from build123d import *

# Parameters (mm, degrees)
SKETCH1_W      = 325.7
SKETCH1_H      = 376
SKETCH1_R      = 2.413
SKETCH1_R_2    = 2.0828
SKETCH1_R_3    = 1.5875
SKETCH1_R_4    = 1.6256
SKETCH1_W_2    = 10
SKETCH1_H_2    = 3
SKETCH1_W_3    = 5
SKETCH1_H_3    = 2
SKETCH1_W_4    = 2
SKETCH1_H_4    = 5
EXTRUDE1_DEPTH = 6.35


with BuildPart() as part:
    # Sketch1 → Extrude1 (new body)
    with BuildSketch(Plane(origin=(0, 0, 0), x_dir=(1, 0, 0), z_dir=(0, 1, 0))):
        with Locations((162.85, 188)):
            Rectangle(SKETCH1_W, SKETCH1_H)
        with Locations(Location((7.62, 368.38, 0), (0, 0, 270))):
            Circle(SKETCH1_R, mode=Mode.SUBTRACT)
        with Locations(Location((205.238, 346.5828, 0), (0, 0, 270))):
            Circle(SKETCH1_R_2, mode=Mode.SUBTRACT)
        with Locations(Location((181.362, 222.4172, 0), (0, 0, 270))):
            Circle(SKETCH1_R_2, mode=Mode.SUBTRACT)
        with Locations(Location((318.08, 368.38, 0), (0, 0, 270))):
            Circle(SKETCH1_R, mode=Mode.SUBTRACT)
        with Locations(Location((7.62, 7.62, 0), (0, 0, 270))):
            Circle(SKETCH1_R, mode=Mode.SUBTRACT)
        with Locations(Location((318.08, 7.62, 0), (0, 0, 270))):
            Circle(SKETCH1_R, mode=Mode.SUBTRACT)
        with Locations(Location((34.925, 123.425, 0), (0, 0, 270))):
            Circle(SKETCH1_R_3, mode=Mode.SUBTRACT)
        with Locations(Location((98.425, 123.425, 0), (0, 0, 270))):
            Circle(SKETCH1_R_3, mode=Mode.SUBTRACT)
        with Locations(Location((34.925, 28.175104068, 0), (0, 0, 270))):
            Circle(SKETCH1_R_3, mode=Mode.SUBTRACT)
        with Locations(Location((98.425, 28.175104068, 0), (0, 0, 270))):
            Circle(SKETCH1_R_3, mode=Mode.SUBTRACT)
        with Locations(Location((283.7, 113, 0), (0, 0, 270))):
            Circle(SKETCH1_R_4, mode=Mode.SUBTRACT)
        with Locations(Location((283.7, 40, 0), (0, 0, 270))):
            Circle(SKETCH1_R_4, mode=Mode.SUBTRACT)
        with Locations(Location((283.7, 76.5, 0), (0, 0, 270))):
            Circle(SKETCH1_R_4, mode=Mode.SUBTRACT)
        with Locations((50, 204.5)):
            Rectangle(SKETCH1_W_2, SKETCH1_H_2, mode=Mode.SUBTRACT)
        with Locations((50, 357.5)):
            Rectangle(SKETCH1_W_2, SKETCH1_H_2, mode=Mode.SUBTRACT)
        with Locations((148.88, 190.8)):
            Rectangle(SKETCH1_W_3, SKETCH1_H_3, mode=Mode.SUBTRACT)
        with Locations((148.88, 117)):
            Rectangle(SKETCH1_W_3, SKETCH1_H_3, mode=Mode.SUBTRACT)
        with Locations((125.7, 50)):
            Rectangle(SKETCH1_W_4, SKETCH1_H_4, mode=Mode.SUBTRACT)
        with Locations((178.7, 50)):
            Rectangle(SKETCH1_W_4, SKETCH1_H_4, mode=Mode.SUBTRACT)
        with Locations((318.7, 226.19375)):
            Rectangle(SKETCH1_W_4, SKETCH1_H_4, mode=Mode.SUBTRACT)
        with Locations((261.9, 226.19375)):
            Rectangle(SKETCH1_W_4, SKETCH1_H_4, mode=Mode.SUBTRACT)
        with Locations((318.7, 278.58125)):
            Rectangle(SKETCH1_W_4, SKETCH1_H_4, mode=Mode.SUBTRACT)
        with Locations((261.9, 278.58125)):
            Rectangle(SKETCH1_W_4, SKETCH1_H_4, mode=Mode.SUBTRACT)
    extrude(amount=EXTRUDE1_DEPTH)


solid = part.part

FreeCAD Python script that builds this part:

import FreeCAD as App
import Part
import Sketcher
from FreeCAD import Vector

doc = App.newDocument("Part")
body = doc.addObject("PartDesign::Body", "Body")

# Sketch on XZ plane
sketch1 = body.newObject("Sketcher::SketchObject", "Sketch")
sketch1.AttachmentSupport = (doc.getObject("XZ_Plane"), [""])
sketch1.MapMode = "FlatFace"
sketch1.addGeometry([
    Part.LineSegment(Vector(0, -376, 0), Vector(0, 0, 0)),  # 0
    Part.LineSegment(Vector(0, 0, 0), Vector(325.7, 0, 0)),  # 1
    Part.LineSegment(Vector(325.7, 0, 0), Vector(325.7, -376, 0)),  # 2
    Part.LineSegment(Vector(325.7, -376, 0), Vector(0, -376, 0)),  # 3
    Part.Circle(Vector(7.6, -7.6, 0), Vector(0, 0, 1), 2.4),  # 4
    Part.Circle(Vector(34.9, -28.2, 0), Vector(0, 0, 1), 1.6),  # 5
    Part.Circle(Vector(98.4, -28.2, 0), Vector(0, 0, 1), 1.6),  # 6
    Part.LineSegment(Vector(126.7, -47.5, 0), Vector(124.7, -47.5, 0)),  # 7
    Part.LineSegment(Vector(124.7, -47.5, 0), Vector(124.7, -52.5, 0)),  # 8
    Part.LineSegment(Vector(124.7, -52.5, 0), Vector(126.7, -52.5, 0)),  # 9
    Part.LineSegment(Vector(126.7, -52.5, 0), Vector(126.7, -47.5, 0)),  # 10
    Part.Circle(Vector(34.9, -123.4, 0), Vector(0, 0, 1), 1.6),  # 11
    Part.Circle(Vector(98.4, -123.4, 0), Vector(0, 0, 1), 1.6),  # 12
    Part.LineSegment(Vector(151.4, -116, 0), Vector(146.4, -116, 0)),  # 13
    Part.LineSegment(Vector(146.4, -116, 0), Vector(146.4, -118, 0)),  # 14
    Part.LineSegment(Vector(146.4, -118, 0), Vector(151.4, -118, 0)),  # 15
    Part.LineSegment(Vector(151.4, -118, 0), Vector(151.4, -116, 0)),  # 16
    Part.LineSegment(Vector(179.7, -47.5, 0), Vector(177.7, -47.5, 0)),  # 17
    Part.LineSegment(Vector(177.7, -47.5, 0), Vector(177.7, -52.5, 0)),  # 18
    Part.LineSegment(Vector(177.7, -52.5, 0), Vector(179.7, -52.5, 0)),  # 19
    Part.LineSegment(Vector(179.7, -52.5, 0), Vector(179.7, -47.5, 0)),  # 20
    Part.Circle(Vector(318.1, -7.6, 0), Vector(0, 0, 1), 2.4),  # 21
    Part.Circle(Vector(283.7, -40, 0), Vector(0, 0, 1), 1.6),  # 22
    Part.Circle(Vector(283.7, -76.5, 0), Vector(0, 0, 1), 1.6),  # 23
    Part.Circle(Vector(283.7, -113, 0), Vector(0, 0, 1), 1.6),  # 24
    Part.LineSegment(Vector(55, -203, 0), Vector(45, -203, 0)),  # 25
    Part.LineSegment(Vector(45, -203, 0), Vector(45, -206, 0)),  # 26
    Part.LineSegment(Vector(45, -206, 0), Vector(55, -206, 0)),  # 27
    Part.LineSegment(Vector(55, -206, 0), Vector(55, -203, 0)),  # 28
    Part.LineSegment(Vector(151.4, -189.8, 0), Vector(146.4, -189.8, 0)),  # 29
    Part.LineSegment(Vector(146.4, -189.8, 0), Vector(146.4, -191.8, 0)),  # 30
    Part.LineSegment(Vector(146.4, -191.8, 0), Vector(151.4, -191.8, 0)),  # 31
    Part.LineSegment(Vector(151.4, -191.8, 0), Vector(151.4, -189.8, 0)),  # 32
    Part.Circle(Vector(7.6, -368.4, 0), Vector(0, 0, 1), 2.4),  # 33
    Part.LineSegment(Vector(55, -356, 0), Vector(45, -356, 0)),  # 34
    Part.LineSegment(Vector(45, -356, 0), Vector(45, -359, 0)),  # 35
    Part.LineSegment(Vector(45, -359, 0), Vector(55, -359, 0)),  # 36
    Part.LineSegment(Vector(55, -359, 0), Vector(55, -356, 0)),  # 37
    Part.Circle(Vector(181.4, -222.4, 0), Vector(0, 0, 1), 2.1),  # 38
    Part.LineSegment(Vector(262.9, -223.7, 0), Vector(260.9, -223.7, 0)),  # 39
    Part.LineSegment(Vector(260.9, -223.7, 0), Vector(260.9, -228.7, 0)),  # 40
    Part.LineSegment(Vector(260.9, -228.7, 0), Vector(262.9, -228.7, 0)),  # 41
    Part.LineSegment(Vector(262.9, -228.7, 0), Vector(262.9, -223.7, 0)),  # 42
    Part.LineSegment(Vector(319.7, -223.7, 0), Vector(317.7, -223.7, 0)),  # 43
    Part.LineSegment(Vector(317.7, -223.7, 0), Vector(317.7, -228.7, 0)),  # 44
    Part.LineSegment(Vector(317.7, -228.7, 0), Vector(319.7, -228.7, 0)),  # 45
    Part.LineSegment(Vector(319.7, -228.7, 0), Vector(319.7, -223.7, 0)),  # 46
    Part.LineSegment(Vector(262.9, -276.1, 0), Vector(260.9, -276.1, 0)),  # 47
    Part.LineSegment(Vector(260.9, -276.1, 0), Vector(260.9, -281.1, 0)),  # 48
    Part.LineSegment(Vector(260.9, -281.1, 0), Vector(262.9, -281.1, 0)),  # 49
    Part.LineSegment(Vector(262.9, -281.1, 0), Vector(262.9, -276.1, 0)),  # 50
    Part.LineSegment(Vector(319.7, -276.1, 0), Vector(317.7, -276.1, 0)),  # 51
    Part.LineSegment(Vector(317.7, -276.1, 0), Vector(317.7, -281.1, 0)),  # 52
    Part.LineSegment(Vector(317.7, -281.1, 0), Vector(319.7, -281.1, 0)),  # 53
    Part.LineSegment(Vector(319.7, -281.1, 0), Vector(319.7, -276.1, 0)),  # 54
    Part.Circle(Vector(205.2, -346.6, 0), Vector(0, 0, 1), 2.1),  # 55
    Part.Circle(Vector(318.1, -368.4, 0), Vector(0, 0, 1), 2.4),  # 56
], False)
sketch1.addConstraint([
    Sketcher.Constraint("Coincident", 0, 2, 1, 1),
    Sketcher.Constraint("Coincident", 1, 2, 2, 1),
    Sketcher.Constraint("Coincident", 2, 2, 3, 1),
    Sketcher.Constraint("Coincident", 3, 2, 0, 1),
    Sketcher.Constraint("Coincident", 7, 2, 8, 1),
    Sketcher.Constraint("Coincident", 8, 2, 9, 1),
    Sketcher.Constraint("Coincident", 9, 2, 10, 1),
    Sketcher.Constraint("Coincident", 10, 2, 7, 1),
    Sketcher.Constraint("Coincident", 13, 2, 14, 1),
    Sketcher.Constraint("Coincident", 14, 2, 15, 1),
    Sketcher.Constraint("Coincident", 15, 2, 16, 1),
    Sketcher.Constraint("Coincident", 16, 2, 13, 1),
    Sketcher.Constraint("Coincident", 17, 2, 18, 1),
    Sketcher.Constraint("Coincident", 18, 2, 19, 1),
    Sketcher.Constraint("Coincident", 19, 2, 20, 1),
    Sketcher.Constraint("Coincident", 20, 2, 17, 1),
    Sketcher.Constraint("Coincident", 25, 2, 26, 1),
    Sketcher.Constraint("Coincident", 26, 2, 27, 1),
    Sketcher.Constraint("Coincident", 27, 2, 28, 1),
    Sketcher.Constraint("Coincident", 28, 2, 25, 1),
    Sketcher.Constraint("Coincident", 29, 2, 30, 1),
    Sketcher.Constraint("Coincident", 30, 2, 31, 1),
    Sketcher.Constraint("Coincident", 31, 2, 32, 1),
    Sketcher.Constraint("Coincident", 32, 2, 29, 1),
    Sketcher.Constraint("Coincident", 34, 2, 35, 1),
    Sketcher.Constraint("Coincident", 35, 2, 36, 1),
    Sketcher.Constraint("Coincident", 36, 2, 37, 1),
    Sketcher.Constraint("Coincident", 37, 2, 34, 1),
    Sketcher.Constraint("Coincident", 39, 2, 40, 1),
    Sketcher.Constraint("Coincident", 40, 2, 41, 1),
    Sketcher.Constraint("Coincident", 41, 2, 42, 1),
    Sketcher.Constraint("Coincident", 42, 2, 39, 1),
    Sketcher.Constraint("Coincident", 43, 2, 44, 1),
    Sketcher.Constraint("Coincident", 44, 2, 45, 1),
    Sketcher.Constraint("Coincident", 45, 2, 46, 1),
    Sketcher.Constraint("Coincident", 46, 2, 43, 1),
    Sketcher.Constraint("Coincident", 47, 2, 48, 1),
    Sketcher.Constraint("Coincident", 48, 2, 49, 1),
    Sketcher.Constraint("Coincident", 49, 2, 50, 1),
    Sketcher.Constraint("Coincident", 50, 2, 47, 1),
    Sketcher.Constraint("Coincident", 51, 2, 52, 1),
    Sketcher.Constraint("Coincident", 52, 2, 53, 1),
    Sketcher.Constraint("Coincident", 53, 2, 54, 1),
    Sketcher.Constraint("Coincident", 54, 2, 51, 1),
    Sketcher.Constraint("Vertical", 0),
    Sketcher.Constraint("Horizontal", 1),
    Sketcher.Constraint("Vertical", 2),
    Sketcher.Constraint("Horizontal", 3),
    Sketcher.Constraint("Horizontal", 7),
    Sketcher.Constraint("Vertical", 8),
    Sketcher.Constraint("Horizontal", 9),
    Sketcher.Constraint("Vertical", 10),
    Sketcher.Constraint("Horizontal", 13),
    Sketcher.Constraint("Vertical", 14),
    Sketcher.Constraint("Horizontal", 15),
    Sketcher.Constraint("Vertical", 16),
    Sketcher.Constraint("Horizontal", 17),
    Sketcher.Constraint("Vertical", 18),
    Sketcher.Constraint("Horizontal", 19),
    Sketcher.Constraint("Vertical", 20),
    Sketcher.Constraint("Horizontal", 25),
    Sketcher.Constraint("Vertical", 26),
    Sketcher.Constraint("Horizontal", 27),
    Sketcher.Constraint("Vertical", 28),
    Sketcher.Constraint("Horizontal", 29),
    Sketcher.Constraint("Vertical", 30),
    Sketcher.Constraint("Horizontal", 31),
    Sketcher.Constraint("Vertical", 32),
    Sketcher.Constraint("Horizontal", 34),
    Sketcher.Constraint("Vertical", 35),
    Sketcher.Constraint("Horizontal", 36),
    Sketcher.Constraint("Vertical", 37),
    Sketcher.Constraint("Horizontal", 39),
    Sketcher.Constraint("Vertical", 40),
    Sketcher.Constraint("Horizontal", 41),
    Sketcher.Constraint("Vertical", 42),
    Sketcher.Constraint("Horizontal", 43),
    Sketcher.Constraint("Vertical", 44),
    Sketcher.Constraint("Horizontal", 45),
    Sketcher.Constraint("Vertical", 46),
    Sketcher.Constraint("Horizontal", 47),
    Sketcher.Constraint("Vertical", 48),
    Sketcher.Constraint("Horizontal", 49),
    Sketcher.Constraint("Vertical", 50),
    Sketcher.Constraint("Horizontal", 51),
    Sketcher.Constraint("Vertical", 52),
    Sketcher.Constraint("Horizontal", 53),
    Sketcher.Constraint("Vertical", 54),
    Sketcher.Constraint("Coincident", 0, 2, -1, 1),
    Sketcher.Constraint("Equal", 5, 6),
    Sketcher.Constraint("Equal", 6, 11),
    Sketcher.Constraint("Equal", 11, 12),
    Sketcher.Constraint("Equal", 4, 21),
    Sketcher.Constraint("Equal", 22, 23),
    Sketcher.Constraint("Equal", 23, 24),
    Sketcher.Constraint("Equal", 21, 33),
    Sketcher.Constraint("Equal", 38, 55),
    Sketcher.Constraint("Equal", 33, 56),
    Sketcher.Constraint("Horizontal", 5, 3, 6, 3),
    Sketcher.Constraint("Horizontal", 11, 3, 12, 3),
    Sketcher.Constraint("Horizontal", 4, 3, 21, 3),
    Sketcher.Constraint("Horizontal", 33, 3, 56, 3),
    Sketcher.Constraint("Horizontal", 10, 2, 17, 2),
    Sketcher.Constraint("Horizontal", 9, 2, 18, 2),
    Sketcher.Constraint("Horizontal", 42, 2, 43, 2),
    Sketcher.Constraint("Horizontal", 41, 2, 44, 2),
    Sketcher.Constraint("Horizontal", 50, 2, 51, 2),
    Sketcher.Constraint("Horizontal", 49, 2, 52, 2),
    Sketcher.Constraint("Vertical", 5, 3, 11, 3),
    Sketcher.Constraint("Vertical", 6, 3, 12, 3),
    Sketcher.Constraint("Vertical", 22, 3, 23, 3),
    Sketcher.Constraint("Vertical", 23, 3, 24, 3),
    Sketcher.Constraint("Vertical", 4, 3, 33, 3),
    Sketcher.Constraint("Vertical", 21, 3, 56, 3),
    Sketcher.Constraint("Vertical", 14, 2, 29, 2),
    Sketcher.Constraint("Vertical", 16, 2, 31, 2),
    Sketcher.Constraint("Vertical", 26, 2, 34, 2),
    Sketcher.Constraint("Vertical", 28, 2, 36, 2),
    Sketcher.Constraint("Vertical", 40, 2, 47, 2),
    Sketcher.Constraint("Vertical", 42, 2, 49, 2),
    Sketcher.Constraint("Vertical", 44, 2, 51, 2),
    Sketcher.Constraint("Vertical", 46, 2, 53, 2),
    Sketcher.Constraint("Equal", 9, 17),
    Sketcher.Constraint("Equal", 19, 39),
    Sketcher.Constraint("Equal", 41, 43),
    Sketcher.Constraint("Equal", 31, 8),
    Sketcher.Constraint("Equal", 53, 14),
    Sketcher.Constraint("Equal", 16, 30),
    Sketcher.Constraint("Equal", 28, 35),
    Sketcher.Constraint("Equal", 20, 40),
    Sketcher.Constraint("Equal", 46, 48),
    Sketcher.Constraint("DistanceX", 7, 2, 7, 1, 2.0),
    Sketcher.Constraint("DistanceX", 13, 2, 13, 1, 5.0),
    Sketcher.Constraint("DistanceX", 25, 2, 25, 1, 10.0),
    Sketcher.Constraint("DistanceY", 0, 1, 0, 2, 376.0),
    Sketcher.Constraint("DistanceY", 26, 2, 26, 1, 3.0),
    Sketcher.Constraint("Diameter", 4, 4.826),
    Sketcher.Constraint("Diameter", 5, 3.175),
    Sketcher.Constraint("DistanceX", 1, 1, 1, 2, 325.7),
    Sketcher.Constraint("DistanceY", 22, 3, -1, 1, 40.0),
    Sketcher.Constraint("DistanceY", 24, 3, -1, 1, 113.0),
    Sketcher.Constraint("DistanceY", 13, 2, -1, 1, 116.0),
    Sketcher.Constraint("DistanceX", -1, 1, 25, 2, 45.0),
    Sketcher.Constraint("DistanceY", 25, 2, -1, 1, 203.0),
    Sketcher.Constraint("DistanceY", 34, 2, -1, 1, 356.0),
    Sketcher.Constraint("DistanceX", 22, 3, 1, 2, 42.0),
    Sketcher.Constraint("DistanceX", 10, 2, 17, 2, 51.0),
    Sketcher.Constraint("DistanceX", 24, 3, 43, 2, 34.0),
    Sketcher.Constraint("Diameter", 22, 3.2512),
    Sketcher.Constraint("Diameter", 38, 4.1656),
    Sketcher.Constraint("DistanceY", 23, 3, -1, 1, 76.5),
    Sketcher.Constraint("DistanceX", -1, 1, 7, 2, 124.7),
    Sketcher.Constraint("DistanceY", 7, 2, -1, 1, 47.5),
    Sketcher.Constraint("DistanceY", 29, 2, -1, 1, 189.8),
    Sketcher.Constraint("DistanceX", -1, 1, 39, 2, 260.9),
    Sketcher.Constraint("DistanceX", 5, 3, 6, 3, 63.5),
    Sketcher.Constraint("DistanceX", -1, 1, 4, 3, 7.62),
    Sketcher.Constraint("DistanceY", 4, 3, -1, 1, 7.62),
    Sketcher.Constraint("DistanceX", -1, 1, 21, 3, 318.08),
    Sketcher.Constraint("DistanceY", 33, 3, -1, 1, 368.38),
    Sketcher.Constraint("DistanceX", -1, 1, 13, 2, 146.38),
    Sketcher.Constraint("DistanceX", -1, 1, 5, 3, 34.925),
    Sketcher.Constraint("DistanceY", 11, 3, -1, 1, 123.425),
    Sketcher.Constraint("DistanceX", -1, 1, 38, 3, 181.362),
    Sketcher.Constraint("DistanceX", -1, 1, 55, 3, 205.238),
    Sketcher.Constraint("DistanceY", 38, 3, -1, 1, 222.4172),
    Sketcher.Constraint("DistanceY", 55, 3, -1, 1, 346.5828),
    Sketcher.Constraint("DistanceY", 47, 2, 40, 2, 47.3875),
    Sketcher.Constraint("DistanceY", 39, 2, -1, 1, 223.69375),
    Sketcher.Constraint("DistanceY", 5, 3, -1, 1, 28.175104),
])
pad1 = body.newObject("PartDesign::Pad", "Pad")
pad1.Profile = sketch1
pad1.Length = 6.35
pad1.Reversed = True

doc.recompute()
